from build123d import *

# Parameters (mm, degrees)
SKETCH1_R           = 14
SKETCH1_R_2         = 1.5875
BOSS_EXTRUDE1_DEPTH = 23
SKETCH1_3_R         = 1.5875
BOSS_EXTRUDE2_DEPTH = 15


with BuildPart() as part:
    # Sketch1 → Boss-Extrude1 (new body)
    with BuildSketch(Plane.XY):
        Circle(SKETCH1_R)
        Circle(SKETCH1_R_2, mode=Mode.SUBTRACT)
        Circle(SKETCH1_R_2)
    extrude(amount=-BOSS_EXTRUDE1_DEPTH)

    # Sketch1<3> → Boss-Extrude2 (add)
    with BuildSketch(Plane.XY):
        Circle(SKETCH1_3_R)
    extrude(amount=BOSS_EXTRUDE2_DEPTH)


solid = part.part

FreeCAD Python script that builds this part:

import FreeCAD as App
import Part
import Sketcher

V = App.Vector
Q = App.Units.Quantity

doc = App.newDocument("Part")
body = doc.addObject("PartDesign::Body", "Body")

# Sketch on XY plane
sketch1 = doc.addObject("Sketcher::SketchObject", "Sketch")
body.addObject(sketch1)
sketch1.AttachmentSupport = (doc.XY_Plane, [""])
sketch1.MapMode = "FlatFace"
sketch1.addGeometry(Part.Circle(V(0, 0, 0), V(0, 0, 1), 14), False)
sketch1.addConstraint([
    Sketcher.Constraint("Coincident", 0, 3, -1, 1),
    Sketcher.Constraint("Diameter", 0, Q("28 mm")),
])
pad1 = doc.addObject("PartDesign::Pad", "Pad")
body.addObject(pad1)
pad1.Profile = sketch1
pad1.Length = 23
pad1.Reversed = True

# Sketch on XY plane
sketch2 = doc.addObject("Sketcher::SketchObject", "Sketch001")
body.addObject(sketch2)
sketch2.AttachmentSupport = (doc.XY_Plane, [""])
sketch2.MapMode = "FlatFace"
sketch2.addGeometry(Part.Circle(V(0, 0, 0), V(0, 0, 1), 1.6), False)
sketch2.addConstraint([
    Sketcher.Constraint("Coincident", 0, 3, -1, 1),
    Sketcher.Constraint("Diameter", 0, Q("3.175 mm")),
])
pad2 = doc.addObject("PartDesign::Pad", "Pad001")
body.addObject(pad2)
pad2.Profile = sketch2
pad2.Length = 15

doc.recompute()
